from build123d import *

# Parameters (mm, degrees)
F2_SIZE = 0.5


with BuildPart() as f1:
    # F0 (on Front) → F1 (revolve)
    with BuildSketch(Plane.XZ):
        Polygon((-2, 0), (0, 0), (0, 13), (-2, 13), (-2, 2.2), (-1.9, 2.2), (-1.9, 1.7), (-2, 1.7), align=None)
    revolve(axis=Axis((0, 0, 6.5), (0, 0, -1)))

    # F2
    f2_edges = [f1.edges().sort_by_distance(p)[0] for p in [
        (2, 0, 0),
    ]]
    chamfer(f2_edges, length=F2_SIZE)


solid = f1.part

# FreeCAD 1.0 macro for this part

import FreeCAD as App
import Part
import Sketcher
from FreeCAD import Vector


def edges_at(feature, points):
    """Names of the edges that pass closest to the given points."""
    edges = feature.Shape.Edges
    near = lambda p: min(range(len(edges)), key=lambda i: edges[i].distToShape(Part.Vertex(*p))[0])
    return sorted({f"Edge{near(p) + 1}" for p in points})


def add_polygon(sketch, points):
    """Adds a closed chain of lines whose ends are joined by coincident constraints."""
    first, n = sketch.GeometryCount, len(points)
    for a, b in zip(points, points[1:] + points[:1]):
        sketch.addGeometry(Part.LineSegment(App.Vector(*a, 0), App.Vector(*b, 0)), False)
    for i in range(n):
        sketch.addConstraint(Sketcher.Constraint("Coincident", first + i, 2, first + (i + 1) % n, 1))

doc = App.newDocument("Part")
params = doc.addObject("Spreadsheet::Sheet", "Params")
for row, (alias, value) in enumerate([
    ("sketch1_width", "2 mm"),
    ("sketch1_height", "13 mm"),
    ("sketch1_width2", "0.1 mm"),
    ("sketch1_height2", "10.8 mm"),
    ("sketch1_height3", "0.5 mm"),
    ("revolution_angle", "360 deg"),
    ("chamfer_size", "0.5 mm"),
], start=1):
    params.set(f"A{row}", alias)
    params.set(f"B{row}", "=" + value)
    params.setAlias(f"B{row}", alias)

body = doc.addObject("PartDesign::Body", "Body")

sketch1 = body.newObject("Sketcher::SketchObject", "Sketch")
sketch1.AttachmentSupport = (doc.getObject("XZ_Plane"), [""])
sketch1.MapMode = "FlatFace"
add_polygon(sketch1, [(-2, 0), (0, 0), (0, 13), (-2, 13), (-2, 2.2), (-1.9, 2.2), (-1.9, 1.7), (-2, 1.7)])
sketch1.addConstraint([
    Sketcher.Constraint("Horizontal", 0),
    Sketcher.Constraint("Vertical", 1),
    Sketcher.Constraint("Horizontal", 2),
    Sketcher.Constraint("Vertical", 3),
    Sketcher.Constraint("Horizontal", 4),
    Sketcher.Constraint("Vertical", 5),
    Sketcher.Constraint("Horizontal", 6),
    Sketcher.Constraint("Vertical", 7),
    Sketcher.Constraint("Coincident", 0, 2, -1, 1),
    Sketcher.Constraint("Vertical", 3, 2, 6, 2),
    Sketcher.Constraint("DistanceX", 0, 1, 0, 2, 2.0),
    Sketcher.Constraint("DistanceY", 1, 1, 1, 2, 13.0),
    Sketcher.Constraint("DistanceX", 4, 1, 4, 2, 0.1),
    Sketcher.Constraint("DistanceY", 3, 2, 3, 1, 10.8),
    Sketcher.Constraint("DistanceY", 5, 2, 5, 1, 0.5),
])
sketch1.setExpression("Constraints[18]", "Params.sketch1_width")
sketch1.setExpression("Constraints[19]", "Params.sketch1_height")
sketch1.setExpression("Constraints[20]", "Params.sketch1_width2")
sketch1.setExpression("Constraints[21]", "Params.sketch1_height2")
sketch1.setExpression("Constraints[22]", "Params.sketch1_height3")
revolution = body.newObject("PartDesign::Revolution", "Revolution")
revolution.Profile = sketch1
revolution.ReferenceAxis = (sketch1, ["V_Axis"])
revolution.setExpression("Angle", "Params.revolution_angle")
doc.recompute()

chamfer = body.newObject("PartDesign::Chamfer", "Chamfer")
chamfer.Base = (revolution, edges_at(revolution, [(2, 0, 0)]))
chamfer.setExpression("Size", "Params.chamfer_size")

doc.recompute()
